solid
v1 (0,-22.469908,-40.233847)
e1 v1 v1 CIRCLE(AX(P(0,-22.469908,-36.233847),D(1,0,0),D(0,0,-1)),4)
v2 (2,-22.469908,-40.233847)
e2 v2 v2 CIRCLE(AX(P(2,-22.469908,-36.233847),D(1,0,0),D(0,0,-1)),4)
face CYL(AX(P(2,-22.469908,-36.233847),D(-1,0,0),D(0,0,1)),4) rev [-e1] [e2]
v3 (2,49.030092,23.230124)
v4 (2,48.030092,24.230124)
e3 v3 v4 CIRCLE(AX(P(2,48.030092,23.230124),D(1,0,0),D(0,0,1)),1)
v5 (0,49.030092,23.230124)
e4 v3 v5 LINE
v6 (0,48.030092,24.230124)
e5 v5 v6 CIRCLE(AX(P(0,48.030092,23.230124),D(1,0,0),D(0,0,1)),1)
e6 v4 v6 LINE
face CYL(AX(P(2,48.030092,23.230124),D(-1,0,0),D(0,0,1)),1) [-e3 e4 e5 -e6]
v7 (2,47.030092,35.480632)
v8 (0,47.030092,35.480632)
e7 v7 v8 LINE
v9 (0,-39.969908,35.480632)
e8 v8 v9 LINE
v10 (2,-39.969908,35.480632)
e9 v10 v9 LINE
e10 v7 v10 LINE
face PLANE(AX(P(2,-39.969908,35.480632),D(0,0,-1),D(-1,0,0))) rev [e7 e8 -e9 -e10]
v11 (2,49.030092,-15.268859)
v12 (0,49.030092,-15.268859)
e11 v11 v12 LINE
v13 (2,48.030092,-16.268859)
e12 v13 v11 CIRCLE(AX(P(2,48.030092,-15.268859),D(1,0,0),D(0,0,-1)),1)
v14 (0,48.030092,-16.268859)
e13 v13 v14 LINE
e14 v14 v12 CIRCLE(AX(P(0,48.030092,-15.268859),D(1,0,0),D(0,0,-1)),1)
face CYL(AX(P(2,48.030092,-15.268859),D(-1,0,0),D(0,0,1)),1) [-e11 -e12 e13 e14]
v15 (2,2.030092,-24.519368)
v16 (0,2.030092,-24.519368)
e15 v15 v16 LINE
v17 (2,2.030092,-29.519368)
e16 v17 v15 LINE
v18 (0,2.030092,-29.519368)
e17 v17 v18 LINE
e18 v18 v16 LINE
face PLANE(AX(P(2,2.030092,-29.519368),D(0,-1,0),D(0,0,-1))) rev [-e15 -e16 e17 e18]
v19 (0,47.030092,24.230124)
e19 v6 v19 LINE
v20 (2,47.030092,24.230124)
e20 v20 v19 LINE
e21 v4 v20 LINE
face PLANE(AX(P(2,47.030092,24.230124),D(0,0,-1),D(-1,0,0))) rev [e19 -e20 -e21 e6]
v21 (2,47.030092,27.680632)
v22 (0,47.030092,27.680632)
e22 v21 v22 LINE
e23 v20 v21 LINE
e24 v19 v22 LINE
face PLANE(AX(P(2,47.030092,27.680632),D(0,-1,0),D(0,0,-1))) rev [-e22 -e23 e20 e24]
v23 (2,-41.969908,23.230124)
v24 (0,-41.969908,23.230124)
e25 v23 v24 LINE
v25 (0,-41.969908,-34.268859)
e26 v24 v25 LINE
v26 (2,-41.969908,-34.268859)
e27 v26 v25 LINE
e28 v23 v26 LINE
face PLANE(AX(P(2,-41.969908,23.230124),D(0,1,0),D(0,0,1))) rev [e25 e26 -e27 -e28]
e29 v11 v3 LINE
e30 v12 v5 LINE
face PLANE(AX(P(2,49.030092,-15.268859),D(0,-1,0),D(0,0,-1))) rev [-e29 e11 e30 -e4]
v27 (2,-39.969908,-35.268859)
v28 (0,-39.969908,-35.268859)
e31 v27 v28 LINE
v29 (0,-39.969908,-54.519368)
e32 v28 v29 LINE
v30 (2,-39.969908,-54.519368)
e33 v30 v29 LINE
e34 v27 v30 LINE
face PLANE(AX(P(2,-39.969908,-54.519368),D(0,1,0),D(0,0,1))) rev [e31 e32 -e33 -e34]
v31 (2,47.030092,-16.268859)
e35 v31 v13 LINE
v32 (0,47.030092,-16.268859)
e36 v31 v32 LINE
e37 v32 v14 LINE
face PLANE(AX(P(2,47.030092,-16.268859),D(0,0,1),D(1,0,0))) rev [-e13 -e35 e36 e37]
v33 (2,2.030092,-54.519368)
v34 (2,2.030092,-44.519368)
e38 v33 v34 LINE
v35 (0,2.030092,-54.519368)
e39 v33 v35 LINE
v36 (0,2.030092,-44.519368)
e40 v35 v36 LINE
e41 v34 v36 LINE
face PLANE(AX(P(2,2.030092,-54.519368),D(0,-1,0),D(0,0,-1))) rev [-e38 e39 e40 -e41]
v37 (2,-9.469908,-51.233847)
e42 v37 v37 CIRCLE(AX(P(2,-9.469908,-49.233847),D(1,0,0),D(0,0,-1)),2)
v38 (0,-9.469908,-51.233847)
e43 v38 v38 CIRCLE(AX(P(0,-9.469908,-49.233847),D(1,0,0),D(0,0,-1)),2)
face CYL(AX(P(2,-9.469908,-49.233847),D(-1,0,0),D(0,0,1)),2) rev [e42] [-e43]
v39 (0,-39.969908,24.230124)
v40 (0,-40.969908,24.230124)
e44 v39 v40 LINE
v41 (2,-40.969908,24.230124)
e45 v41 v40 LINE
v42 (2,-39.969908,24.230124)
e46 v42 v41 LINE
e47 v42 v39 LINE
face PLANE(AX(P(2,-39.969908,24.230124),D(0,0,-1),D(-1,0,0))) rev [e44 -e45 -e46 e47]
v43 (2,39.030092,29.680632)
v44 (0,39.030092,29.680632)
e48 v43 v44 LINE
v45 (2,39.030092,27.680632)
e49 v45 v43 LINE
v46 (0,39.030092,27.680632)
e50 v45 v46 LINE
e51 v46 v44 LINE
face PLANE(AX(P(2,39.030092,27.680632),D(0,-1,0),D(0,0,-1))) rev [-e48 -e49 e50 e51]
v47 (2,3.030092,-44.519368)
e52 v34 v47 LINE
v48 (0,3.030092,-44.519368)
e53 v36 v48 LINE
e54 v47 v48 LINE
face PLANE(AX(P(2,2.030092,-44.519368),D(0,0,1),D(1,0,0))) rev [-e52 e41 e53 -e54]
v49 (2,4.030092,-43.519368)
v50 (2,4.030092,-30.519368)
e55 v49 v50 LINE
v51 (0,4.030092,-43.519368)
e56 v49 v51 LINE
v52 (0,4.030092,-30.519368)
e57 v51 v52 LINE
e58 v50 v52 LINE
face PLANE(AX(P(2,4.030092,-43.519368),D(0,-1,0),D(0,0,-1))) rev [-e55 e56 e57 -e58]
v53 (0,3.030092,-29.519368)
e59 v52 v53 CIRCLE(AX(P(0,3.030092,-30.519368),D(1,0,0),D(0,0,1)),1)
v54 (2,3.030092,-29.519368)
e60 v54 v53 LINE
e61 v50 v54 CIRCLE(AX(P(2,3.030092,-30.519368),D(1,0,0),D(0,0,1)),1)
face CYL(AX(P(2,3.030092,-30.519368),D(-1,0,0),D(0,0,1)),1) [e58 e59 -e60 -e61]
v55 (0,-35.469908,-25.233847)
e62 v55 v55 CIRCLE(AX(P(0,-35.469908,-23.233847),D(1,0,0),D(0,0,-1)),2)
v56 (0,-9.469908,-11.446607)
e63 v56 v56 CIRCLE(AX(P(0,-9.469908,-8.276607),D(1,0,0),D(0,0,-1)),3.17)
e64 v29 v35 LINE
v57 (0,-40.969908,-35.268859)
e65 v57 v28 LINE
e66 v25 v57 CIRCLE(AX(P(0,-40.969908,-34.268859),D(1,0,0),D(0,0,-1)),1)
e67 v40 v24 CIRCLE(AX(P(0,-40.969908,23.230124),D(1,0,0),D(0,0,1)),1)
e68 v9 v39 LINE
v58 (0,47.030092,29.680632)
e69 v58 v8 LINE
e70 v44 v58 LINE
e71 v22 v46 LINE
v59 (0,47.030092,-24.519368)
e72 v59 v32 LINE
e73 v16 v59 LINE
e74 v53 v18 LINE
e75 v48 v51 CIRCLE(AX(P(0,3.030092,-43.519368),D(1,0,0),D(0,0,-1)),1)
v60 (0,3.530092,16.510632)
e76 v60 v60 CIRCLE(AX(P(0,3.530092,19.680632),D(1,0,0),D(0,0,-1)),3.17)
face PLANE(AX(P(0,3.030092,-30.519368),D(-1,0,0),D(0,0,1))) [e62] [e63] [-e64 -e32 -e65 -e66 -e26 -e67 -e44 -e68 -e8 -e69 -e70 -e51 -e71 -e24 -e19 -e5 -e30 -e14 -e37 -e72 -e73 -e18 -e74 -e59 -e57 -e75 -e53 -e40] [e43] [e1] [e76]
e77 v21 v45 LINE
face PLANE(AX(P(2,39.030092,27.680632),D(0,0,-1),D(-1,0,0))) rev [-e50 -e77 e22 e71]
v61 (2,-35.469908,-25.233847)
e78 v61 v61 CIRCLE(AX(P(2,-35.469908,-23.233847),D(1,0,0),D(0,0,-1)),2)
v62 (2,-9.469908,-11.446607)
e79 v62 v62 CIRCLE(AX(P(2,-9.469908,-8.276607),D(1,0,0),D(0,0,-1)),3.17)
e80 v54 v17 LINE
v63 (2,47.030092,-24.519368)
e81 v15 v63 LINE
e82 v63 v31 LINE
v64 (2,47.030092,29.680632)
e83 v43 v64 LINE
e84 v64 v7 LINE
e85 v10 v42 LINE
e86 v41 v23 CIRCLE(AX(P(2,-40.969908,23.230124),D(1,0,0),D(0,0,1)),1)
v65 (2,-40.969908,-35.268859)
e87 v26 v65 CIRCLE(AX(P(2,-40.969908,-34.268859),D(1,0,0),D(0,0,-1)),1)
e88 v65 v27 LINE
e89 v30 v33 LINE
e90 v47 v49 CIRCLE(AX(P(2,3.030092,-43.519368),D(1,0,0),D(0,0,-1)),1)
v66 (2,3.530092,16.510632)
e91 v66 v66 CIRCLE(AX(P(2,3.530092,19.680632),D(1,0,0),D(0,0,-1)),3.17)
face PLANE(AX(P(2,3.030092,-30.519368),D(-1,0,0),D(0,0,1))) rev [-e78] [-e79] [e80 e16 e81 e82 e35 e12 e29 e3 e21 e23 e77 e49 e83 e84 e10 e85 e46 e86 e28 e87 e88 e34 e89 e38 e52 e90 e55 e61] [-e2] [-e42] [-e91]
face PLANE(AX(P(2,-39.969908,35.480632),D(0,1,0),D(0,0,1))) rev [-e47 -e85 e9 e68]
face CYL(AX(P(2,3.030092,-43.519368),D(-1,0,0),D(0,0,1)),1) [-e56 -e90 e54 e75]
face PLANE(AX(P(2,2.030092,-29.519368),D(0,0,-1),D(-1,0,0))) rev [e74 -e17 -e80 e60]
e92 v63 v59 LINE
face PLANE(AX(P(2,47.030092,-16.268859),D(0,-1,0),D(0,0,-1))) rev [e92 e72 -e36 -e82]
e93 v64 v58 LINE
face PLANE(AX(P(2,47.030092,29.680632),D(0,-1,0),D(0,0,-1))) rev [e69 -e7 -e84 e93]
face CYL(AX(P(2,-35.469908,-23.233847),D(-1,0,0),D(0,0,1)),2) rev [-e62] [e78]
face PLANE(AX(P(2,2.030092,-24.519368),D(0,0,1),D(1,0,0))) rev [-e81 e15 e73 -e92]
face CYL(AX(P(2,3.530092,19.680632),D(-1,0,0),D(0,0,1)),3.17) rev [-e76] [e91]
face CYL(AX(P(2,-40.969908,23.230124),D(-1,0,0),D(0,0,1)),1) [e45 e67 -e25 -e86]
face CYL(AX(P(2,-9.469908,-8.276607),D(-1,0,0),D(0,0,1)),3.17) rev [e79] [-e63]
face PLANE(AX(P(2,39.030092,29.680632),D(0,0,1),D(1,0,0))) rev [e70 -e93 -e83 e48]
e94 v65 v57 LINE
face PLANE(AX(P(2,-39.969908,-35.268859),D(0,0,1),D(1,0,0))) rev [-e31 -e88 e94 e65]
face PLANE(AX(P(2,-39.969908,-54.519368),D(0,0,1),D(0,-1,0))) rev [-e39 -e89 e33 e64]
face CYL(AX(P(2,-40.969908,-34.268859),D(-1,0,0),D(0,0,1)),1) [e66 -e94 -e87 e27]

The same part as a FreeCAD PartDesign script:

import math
import FreeCAD as App
import Part
import Sketcher
from FreeCAD import Vector
Q = App.Units.Quantity

doc = App.newDocument("Part")
body = doc.addObject("PartDesign::Body", "Body")

# Sketch on YZ plane
sketch1 = doc.addObject("Sketcher::SketchObject", "Sketch")
body.addObject(sketch1)
sketch1.AttachmentSupport = (doc.YZ_Plane, [""])
sketch1.MapMode = "FlatFace"
sketch1.addGeometry([
    Part.LineSegment(Vector(-39.969908, -54.519368, 0), Vector(2.030092, -54.519368, 0)),  # 0
    Part.LineSegment(Vector(2.030092, -54.519368, 0), Vector(2.030092, -44.519368, 0)),  # 1
    Part.LineSegment(Vector(2.030092, -44.519368, 0), Vector(3.030092, -44.519368, 0)),  # 2
    Part.ArcOfCircle(Part.Circle(Vector(3.030092, -43.519368, 0), Vector(0, 0, 1), 1), math.radians(-90), math.radians(0)),  # 3
    Part.LineSegment(Vector(4.030092, -43.519368, 0), Vector(4.030092, -30.519368, 0)),  # 4
    Part.ArcOfCircle(Part.Circle(Vector(3.030092, -30.519368, 0), Vector(0, 0, 1), 1), math.radians(0), math.radians(90)),  # 5
    Part.LineSegment(Vector(3.030092, -29.519368, 0), Vector(2.030092, -29.519368, 0)),  # 6
    Part.LineSegment(Vector(2.030092, -29.519368, 0), Vector(2.030092, -24.519368, 0)),  # 7
    Part.LineSegment(Vector(2.030092, -24.519368, 0), Vector(47.030092, -24.519368, 0)),  # 8
    Part.LineSegment(Vector(47.030092, -24.519368, 0), Vector(47.030092, -16.268859, 0)),  # 9
    Part.LineSegment(Vector(47.030092, -16.268859, 0), Vector(48.030092, -16.268859, 0)),  # 10
    Part.ArcOfCircle(Part.Circle(Vector(48.030092, -15.268859, 0), Vector(0, 0, 1), 1), math.radians(-90), math.radians(0)),  # 11
    Part.LineSegment(Vector(49.030092, -15.268859, 0), Vector(49.030092, 23.230124, 0)),  # 12
    Part.ArcOfCircle(Part.Circle(Vector(48.030092, 23.230124, 0), Vector(0, 0, 1), 1), math.radians(0), math.radians(90)),  # 13
    Part.LineSegment(Vector(48.030092, 24.230124, 0), Vector(47.030092, 24.230124, 0)),  # 14
    Part.LineSegment(Vector(47.030092, 24.230124, 0), Vector(47.030092, 27.680632, 0)),  # 15
    Part.LineSegment(Vector(47.030092, 27.680632, 0), Vector(39.030092, 27.680632, 0)),  # 16
    Part.LineSegment(Vector(39.030092, 27.680632, 0), Vector(39.030092, 29.680632, 0)),  # 17
    Part.LineSegment(Vector(39.030092, 29.680632, 0), Vector(47.030092, 29.680632, 0)),  # 18
    Part.LineSegment(Vector(47.030092, 29.680632, 0), Vector(47.030092, 35.480632, 0)),  # 19
    Part.LineSegment(Vector(47.030092, 35.480632, 0), Vector(-39.969908, 35.480632, 0)),  # 20
    Part.LineSegment(Vector(-39.969908, 35.480632, 0), Vector(-39.969908, 24.230124, 0)),  # 21
    Part.LineSegment(Vector(-39.969908, 24.230124, 0), Vector(-40.969908, 24.230124, 0)),  # 22
    Part.ArcOfCircle(Part.Circle(Vector(-40.969908, 23.230124, 0), Vector(0, 0, 1), 1), math.radians(90), math.radians(180)),  # 23
    Part.LineSegment(Vector(-41.969908, 23.230124, 0), Vector(-41.969908, -34.268859, 0)),  # 24
    Part.ArcOfCircle(Part.Circle(Vector(-40.969908, -34.268859, 0), Vector(0, 0, 1), 1), math.radians(-180), math.radians(-90)),  # 25
    Part.LineSegment(Vector(-40.969908, -35.268859, 0), Vector(-39.969908, -35.268859, 0)),  # 26
    Part.LineSegment(Vector(-39.969908, -35.268859, 0), Vector(-39.969908, -54.519368, 0)),  # 27
    Part.Circle(Vector(-35.469908, -23.233847, 0), Vector(0, 0, 1), 2),  # 28
    Part.Circle(Vector(-22.469908, -36.233847, 0), Vector(0, 0, 1), 4),  # 29
    Part.Circle(Vector(-9.469908, -8.276607, 0), Vector(0, 0, 1), 3.17),  # 30
    Part.Circle(Vector(3.530092, 19.680632, 0), Vector(0, 0, 1), 3.17),  # 31
    Part.Circle(Vector(-9.469908, -49.233847, 0), Vector(0, 0, 1), 2),  # 32
], False)
sketch1.addConstraint([
    Sketcher.Constraint("Coincident", 0, 2, 1, 1),
    Sketcher.Constraint("Coincident", 1, 2, 2, 1),
    Sketcher.Constraint("Tangent", 2, 2, 3, 1),
    Sketcher.Constraint("Tangent", 3, 2, 4, 1),
    Sketcher.Constraint("Tangent", 4, 2, 5, 1),
    Sketcher.Constraint("Tangent", 5, 2, 6, 1),
    Sketcher.Constraint("Coincident", 6, 2, 7, 1),
    Sketcher.Constraint("Coincident", 7, 2, 8, 1),
    Sketcher.Constraint("Coincident", 8, 2, 9, 1),
    Sketcher.Constraint("Coincident", 9, 2, 10, 1),
    Sketcher.Constraint("Tangent", 10, 2, 11, 1),
    Sketcher.Constraint("Tangent", 11, 2, 12, 1),
    Sketcher.Constraint("Tangent", 12, 2, 13, 1),
    Sketcher.Constraint("Tangent", 13, 2, 14, 1),
    Sketcher.Constraint("Coincident", 14, 2, 15, 1),
    Sketcher.Constraint("Coincident", 15, 2, 16, 1),
    Sketcher.Constraint("Coincident", 16, 2, 17, 1),
    Sketcher.Constraint("Coincident", 17, 2, 18, 1),
    Sketcher.Constraint("Coincident", 18, 2, 19, 1),
    Sketcher.Constraint("Coincident", 19, 2, 20, 1),
    Sketcher.Constraint("Coincident", 20, 2, 21, 1),
    Sketcher.Constraint("Coincident", 21, 2, 22, 1),
    Sketcher.Constraint("Tangent", 22, 2, 23, 1),
    Sketcher.Constraint("Tangent", 23, 2, 24, 1),
    Sketcher.Constraint("Tangent", 24, 2, 25, 1),
    Sketcher.Constraint("Tangent", 25, 2, 26, 1),
    Sketcher.Constraint("Coincident", 26, 2, 27, 1),
    Sketcher.Constraint("Coincident", 27, 2, 0, 1),
    Sketcher.Constraint("Horizontal", 0),
    Sketcher.Constraint("Vertical", 1),
    Sketcher.Constraint("Horizontal", 2),
    Sketcher.Constraint("Vertical", 4),
    Sketcher.Constraint("Horizontal", 6),
    Sketcher.Constraint("Vertical", 7),
    Sketcher.Constraint("Horizontal", 8),
    Sketcher.Constraint("Vertical", 9),
    Sketcher.Constraint("Horizontal", 10),
    Sketcher.Constraint("Vertical", 12),
    Sketcher.Constraint("Horizontal", 14),
    Sketcher.Constraint("Vertical", 15),
    Sketcher.Constraint("Horizontal", 16),
    Sketcher.Constraint("Vertical", 17),
    Sketcher.Constraint("Horizontal", 18),
    Sketcher.Constraint("Vertical", 19),
    Sketcher.Constraint("Horizontal", 20),
    Sketcher.Constraint("Vertical", 21),
    Sketcher.Constraint("Horizontal", 22),
    Sketcher.Constraint("Vertical", 24),
    Sketcher.Constraint("Horizontal", 26),
    Sketcher.Constraint("Vertical", 27),
    Sketcher.Constraint("Equal", 3, 5),
    Sketcher.Constraint("Equal", 5, 11),
    Sketcher.Constraint("Equal", 11, 13),
    Sketcher.Constraint("Equal", 13, 23),
    Sketcher.Constraint("Equal", 23, 25),
    Sketcher.Constraint("Equal", 30, 31),
    Sketcher.Constraint("Equal", 28, 32),
    Sketcher.Constraint("Horizontal", 13, 3, 23, 3),
    Sketcher.Constraint("Vertical", 30, 3, 32, 3),
    Sketcher.Constraint("Vertical", 1, 2, 6, 2),
    Sketcher.Constraint("Vertical", 9, 2, 14, 2),
    Sketcher.Constraint("Vertical", 15, 2, 18, 2),
    Sketcher.Constraint("Vertical", 21, 2, 26, 2),
    Sketcher.Constraint("Equal", 6, 10),
    Sketcher.Constraint("Equal", 14, 22),
    Sketcher.Constraint("Diameter", 28, Q("4 mm")),
    Sketcher.Constraint("Diameter", 29, Q("8 mm")),
    Sketcher.Constraint("Radius", 3, Q("1 mm")),
    Sketcher.Constraint("Diameter", 30, Q("6.34 mm")),
    Sketcher.Constraint("DistanceX", 0, 1, 0, 2, Q("42 mm")),
    Sketcher.Constraint("DistanceX", 2, 1, 2, 2, Q("1 mm")),
    Sketcher.Constraint("DistanceX", 8, 1, 8, 2, Q("45 mm")),
    Sketcher.Constraint("DistanceX", 16, 2, 16, 1, Q("8 mm")),
    Sketcher.Constraint("DistanceY", 1, 1, 1, 2, Q("10 mm")),
    Sketcher.Constraint("DistanceY", 4, 1, 4, 2, Q("13 mm")),
    Sketcher.Constraint("DistanceY", 7, 1, 7, 2, Q("5 mm")),
    Sketcher.Constraint("DistanceY", 17, 1, 17, 2, Q("2 mm")),
    Sketcher.Constraint("DistanceY", 19, 1, 19, 2, Q("5.8 mm")),
    Sketcher.Constraint("DistanceY", 25, 3, 11, 3, Q("19 mm")),
    Sketcher.Constraint("DistanceX", 28, 3, 29, 3, Q("13 mm")),
    Sketcher.Constraint("DistanceY", 29, 3, 28, 3, Q("13 mm")),
    Sketcher.Constraint("DistanceX", 28, 3, 30, 3, Q("26 mm")),
    Sketcher.Constraint("DistanceX", 30, 3, 31, 3, Q("13 mm")),
    Sketcher.Constraint("DistanceY", 32, 3, 29, 3, Q("13 mm")),
    Sketcher.Constraint("DistanceX", 25, 3, 28, 3, Q("5.5 mm")),
    Sketcher.Constraint("DistanceY", 5, 3, 31, 3, Q("50.2 mm")),
    Sketcher.Constraint("DistanceY", 31, 3, 20, 2, Q("15.8 mm")),
    Sketcher.Constraint("DistanceY", 9, 1, 9, 2, Q("8.250509 mm")),
    Sketcher.Constraint("DistanceY", 15, 1, 15, 2, Q("3.450509 mm")),
    Sketcher.Constraint("DistanceY", 11, 3, -1, 1, Q("15.268859 mm")),
    Sketcher.Constraint("DistanceY", 25, 3, 28, 3, Q("11.035012 mm")),
    Sketcher.Constraint("DistanceY", 5, 3, 30, 3, Q("22.24276 mm")),
    Sketcher.Constraint("DistanceX", -1, 1, 3, 3, Q("3.030092 mm")),
])
pad1 = doc.addObject("PartDesign::Pad", "Pad")
body.addObject(pad1)
pad1.Profile = sketch1
pad1.Length = 2

doc.recompute()
